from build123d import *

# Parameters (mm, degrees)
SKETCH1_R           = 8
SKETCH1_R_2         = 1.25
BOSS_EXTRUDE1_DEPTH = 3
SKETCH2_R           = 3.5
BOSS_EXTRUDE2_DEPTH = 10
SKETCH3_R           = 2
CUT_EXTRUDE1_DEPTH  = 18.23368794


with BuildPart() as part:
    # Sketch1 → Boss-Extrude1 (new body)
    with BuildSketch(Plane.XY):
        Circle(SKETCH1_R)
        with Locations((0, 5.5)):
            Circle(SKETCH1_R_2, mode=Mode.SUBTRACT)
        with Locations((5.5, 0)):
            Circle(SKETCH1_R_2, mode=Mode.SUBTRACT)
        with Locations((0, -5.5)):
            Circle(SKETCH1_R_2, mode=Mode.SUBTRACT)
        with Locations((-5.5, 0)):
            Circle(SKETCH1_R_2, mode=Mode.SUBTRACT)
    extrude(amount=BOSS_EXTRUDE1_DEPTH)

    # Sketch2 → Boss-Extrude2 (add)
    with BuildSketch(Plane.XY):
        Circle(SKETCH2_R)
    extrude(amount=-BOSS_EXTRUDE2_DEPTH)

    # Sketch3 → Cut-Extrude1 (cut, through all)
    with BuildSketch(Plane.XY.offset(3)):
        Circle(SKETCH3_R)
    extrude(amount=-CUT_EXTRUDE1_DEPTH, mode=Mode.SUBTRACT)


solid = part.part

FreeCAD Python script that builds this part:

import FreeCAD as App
import Part
import Sketcher
from FreeCAD import Vector
Q = App.Units.Quantity

doc = App.newDocument("Part")
body = doc.addObject("PartDesign::Body", "Body")

# Sketch on XY plane
sketch1 = body.newObject("Sketcher::SketchObject", "Sketch")
sketch1.AttachmentSupport = (doc.getObject("XY_Plane"), [""])
sketch1.MapMode = "FlatFace"
sketch1.addGeometry([
    Part.Circle(Vector(0, 0, 0), Vector(0, 0, 1), 8),  # 0
    Part.Circle(Vector(0, -5.5, 0), Vector(0, 0, 1), 1.25),  # 1
    Part.Circle(Vector(-5.5, 0, 0), Vector(0, 0, 1), 1.25),  # 2
    Part.Circle(Vector(5.5, 0, 0), Vector(0, 0, 1), 1.25),  # 3
    Part.Circle(Vector(0, 5.5, 0), Vector(0, 0, 1), 1.25),  # 4
], False)
sketch1.addConstraint([
    Sketcher.Constraint("Coincident", 0, 3, -1, 1),
    Sketcher.Constraint("Equal", 1, 2),
    Sketcher.Constraint("Equal", 2, 3),
    Sketcher.Constraint("Equal", 3, 4),
    Sketcher.Constraint("Symmetric", 2, 3, 3, 3, -1, 1),
    Sketcher.Constraint("Symmetric", 1, 3, 4, 3, -1, 1),
    Sketcher.Constraint("PointOnObject", 1, 3, -2),
    Sketcher.Constraint("PointOnObject", 2, 3, -1),
    Sketcher.Constraint("Diameter", 0, Q("16 mm")),
    Sketcher.Constraint("Diameter", 1, Q("2.5 mm")),
    Sketcher.Constraint("DistanceX", 2, 3, 3, 3, Q("11 mm")),
    Sketcher.Constraint("DistanceY", 1, 3, 4, 3, Q("11 mm")),
])
pad1 = body.newObject("PartDesign::Pad", "Pad")
pad1.Profile = sketch1
pad1.Length = 3

# Sketch on XY plane
sketch2 = body.newObject("Sketcher::SketchObject", "Sketch001")
sketch2.AttachmentSupport = (doc.getObject("XY_Plane"), [""])
sketch2.MapMode = "FlatFace"
sketch2.addGeometry(Part.Circle(Vector(0, 0, 0), Vector(0, 0, 1), 3.5), False)
sketch2.addConstraint([
    Sketcher.Constraint("Coincident", 0, 3, -1, 1),
    Sketcher.Constraint("Diameter", 0, Q("7 mm")),
])
pad2 = body.newObject("PartDesign::Pad", "Pad001")
pad2.Profile = sketch2
pad2.Length = 10
pad2.Reversed = True

# Sketch on XY plane
sketch3 = body.newObject("Sketcher::SketchObject", "Sketch002")
sketch3.AttachmentSupport = (doc.getObject("XY_Plane"), [""])
sketch3.MapMode = "FlatFace"
sketch3.AttachmentOffset = App.Placement(Vector(0, 0, 3), App.Rotation())
sketch3.addGeometry(Part.Circle(Vector(0, 0, 0), Vector(0, 0, 1), 2), False)
sketch3.addConstraint([
    Sketcher.Constraint("Coincident", 0, 3, -1, 1),
    Sketcher.Constraint("Diameter", 0, Q("4 mm")),
])
pocket1 = body.newObject("PartDesign::Pocket", "Pocket")
pocket1.Profile = sketch3
pocket1.Type = "ThroughAll"

doc.recompute()
